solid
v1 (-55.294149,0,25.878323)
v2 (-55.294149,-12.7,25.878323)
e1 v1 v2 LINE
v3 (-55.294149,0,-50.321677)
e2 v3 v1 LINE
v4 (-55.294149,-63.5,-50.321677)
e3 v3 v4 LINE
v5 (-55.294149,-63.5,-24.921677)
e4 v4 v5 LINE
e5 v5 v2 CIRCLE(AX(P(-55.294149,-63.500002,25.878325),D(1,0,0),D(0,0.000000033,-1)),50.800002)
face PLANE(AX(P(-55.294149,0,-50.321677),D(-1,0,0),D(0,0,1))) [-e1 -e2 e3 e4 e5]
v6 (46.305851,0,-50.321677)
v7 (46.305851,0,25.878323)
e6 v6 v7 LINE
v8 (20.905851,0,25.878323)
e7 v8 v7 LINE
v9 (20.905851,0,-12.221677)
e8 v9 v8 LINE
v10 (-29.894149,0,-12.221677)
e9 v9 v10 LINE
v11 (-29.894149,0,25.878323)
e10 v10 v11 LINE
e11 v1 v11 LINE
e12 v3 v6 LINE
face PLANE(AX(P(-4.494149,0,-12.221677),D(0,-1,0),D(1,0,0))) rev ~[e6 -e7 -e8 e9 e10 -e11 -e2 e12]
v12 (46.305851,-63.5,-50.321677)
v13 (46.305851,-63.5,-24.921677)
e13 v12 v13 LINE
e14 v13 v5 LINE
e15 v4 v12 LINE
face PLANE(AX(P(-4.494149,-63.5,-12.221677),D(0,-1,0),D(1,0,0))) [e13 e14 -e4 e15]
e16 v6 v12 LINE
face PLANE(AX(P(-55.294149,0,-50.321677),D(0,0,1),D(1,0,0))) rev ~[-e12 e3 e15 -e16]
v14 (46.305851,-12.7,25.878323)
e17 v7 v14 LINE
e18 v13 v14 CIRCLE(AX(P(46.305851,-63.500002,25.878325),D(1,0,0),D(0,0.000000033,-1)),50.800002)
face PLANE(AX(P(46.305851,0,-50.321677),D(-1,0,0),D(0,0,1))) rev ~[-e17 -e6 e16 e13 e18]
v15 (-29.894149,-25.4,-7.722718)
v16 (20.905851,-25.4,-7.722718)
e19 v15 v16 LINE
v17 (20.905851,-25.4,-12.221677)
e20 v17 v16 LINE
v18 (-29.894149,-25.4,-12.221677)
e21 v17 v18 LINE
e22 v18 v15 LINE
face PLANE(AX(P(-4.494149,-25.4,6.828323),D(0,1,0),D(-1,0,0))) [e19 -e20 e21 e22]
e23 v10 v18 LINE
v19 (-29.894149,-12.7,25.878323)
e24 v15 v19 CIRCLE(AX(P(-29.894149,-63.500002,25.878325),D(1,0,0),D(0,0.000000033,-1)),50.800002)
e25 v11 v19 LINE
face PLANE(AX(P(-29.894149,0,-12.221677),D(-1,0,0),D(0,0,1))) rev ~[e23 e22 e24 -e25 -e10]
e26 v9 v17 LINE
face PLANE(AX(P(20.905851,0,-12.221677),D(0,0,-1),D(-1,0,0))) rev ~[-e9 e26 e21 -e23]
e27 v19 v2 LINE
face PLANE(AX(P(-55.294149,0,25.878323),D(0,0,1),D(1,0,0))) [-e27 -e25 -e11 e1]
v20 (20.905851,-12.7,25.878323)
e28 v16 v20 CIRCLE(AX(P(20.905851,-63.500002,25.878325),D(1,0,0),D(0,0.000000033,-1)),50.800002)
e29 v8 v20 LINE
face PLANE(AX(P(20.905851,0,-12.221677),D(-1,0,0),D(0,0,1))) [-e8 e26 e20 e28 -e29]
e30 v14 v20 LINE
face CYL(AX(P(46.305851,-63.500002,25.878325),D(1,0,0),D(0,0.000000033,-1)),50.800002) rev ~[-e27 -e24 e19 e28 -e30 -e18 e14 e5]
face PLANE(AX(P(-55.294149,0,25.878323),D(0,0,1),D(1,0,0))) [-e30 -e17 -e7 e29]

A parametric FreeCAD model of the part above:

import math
import FreeCAD as App
import Part
import Sketcher
from FreeCAD import Vector
Q = App.Units.Quantity

doc = App.newDocument("Part")
body = doc.addObject("PartDesign::Body", "Body")

sketch1 = doc.addObject("Sketcher::SketchObject", "Sketch")
body.addObject(sketch1)
sketch1.AttachmentSupport = (doc.XZ_Plane, [""])
sketch1.MapMode = "FlatFace"
sketch1.addGeometry([
    Part.LineSegment(Vector(-55.294149, 25.878323, 0), Vector(-55.294149, -50.321677, 0)),
    Part.LineSegment(Vector(-55.294149, -50.321677, 0), Vector(46.305851, -50.321677, 0)),
    Part.LineSegment(Vector(46.305851, -50.321677, 0), Vector(46.305851, 25.878323, 0)),
    Part.LineSegment(Vector(46.305851, 25.878323, 0), Vector(-55.294149, 25.878323, 0)),
], False)
sketch1.addConstraint([
    Sketcher.Constraint("Coincident", 0, 2, 1, 1),
    Sketcher.Constraint("Coincident", 1, 2, 2, 1),
    Sketcher.Constraint("Coincident", 2, 2, 3, 1),
    Sketcher.Constraint("Coincident", 3, 2, 0, 1),
    Sketcher.Constraint("Vertical", 0),
    Sketcher.Constraint("Horizontal", 1),
    Sketcher.Constraint("Vertical", 2),
    Sketcher.Constraint("Horizontal", 3),
    Sketcher.Constraint("DistanceX", 1, 1, 1, 2, Q("4 in")),
    Sketcher.Constraint("DistanceY", 0, 2, 0, 1, Q("3 in")),
    Sketcher.Constraint("DistanceX", 0, 2, -1, 1, 55.294149),
    Sketcher.Constraint("DistanceY", 0, 2, -1, 1, 50.321677),
])
pad1 = doc.addObject("PartDesign::Pad", "Pad")
body.addObject(pad1)
pad1.Profile = sketch1
pad1.Length = Q("2.5 in")

sketch2 = doc.addObject("Sketcher::SketchObject", "Sketch001")
body.addObject(sketch2)
sketch2.AttachmentSupport = (doc.YZ_Plane, [""])
sketch2.MapMode = "FlatFace"
sketch2.AttachmentOffset = App.Placement(Vector(0, 0, 46.305851), App.Rotation())
sketch2.addGeometry([
    Part.LineSegment(Vector(-63.5, 25.878323, 0), Vector(-63.5, -24.921677, 0)),
    Part.ArcOfCircle(Part.Circle(Vector(-63.500002, 25.878325, 0), Vector(0, 0, 1), 50.800002), math.radians(-89.999998), math.radians(-0.000002)),
    Part.LineSegment(Vector(-12.7, 25.878323, 0), Vector(-63.5, 25.878323, 0)),
], False)
sketch2.addConstraint([
    Sketcher.Constraint("Coincident", 0, 2, 1, 1),
    Sketcher.Constraint("Coincident", 1, 2, 2, 1),
    Sketcher.Constraint("Coincident", 2, 2, 0, 1),
    Sketcher.Constraint("Vertical", 0),
    Sketcher.Constraint("Horizontal", 2),
    Sketcher.Constraint("Coincident", 2, 2, 1, 3),
    Sketcher.Constraint("Radius", 1, Q("2.0000001 in")),
    Sketcher.Constraint("DistanceX", 1, 3, -1, 1, Q("2.5000001 in")),
    Sketcher.Constraint("DistanceY", -1, 1, 1, 3, 25.878325),
])
pocket1 = doc.addObject("PartDesign::Pocket", "Pocket")
body.addObject(pocket1)
pocket1.Profile = sketch2
pocket1.Length = Q("4.5 in")

sketch3 = doc.addObject("Sketcher::SketchObject", "Sketch002")
body.addObject(sketch3)
sketch3.AttachmentSupport = (doc.XZ_Plane, [""])
sketch3.MapMode = "FlatFace"
sketch3.addGeometry([
    Part.LineSegment(Vector(20.905851, 25.878323, 0), Vector(20.905851, -12.221677, 0)),
    Part.LineSegment(Vector(20.905851, -12.221677, 0), Vector(-29.894149, -12.221677, 0)),
    Part.LineSegment(Vector(-29.894149, -12.221677, 0), Vector(-29.894149, 25.878323, 0)),
    Part.LineSegment(Vector(-29.894149, 25.878323, 0), Vector(20.905851, 25.878323, 0)),
], False)
sketch3.addConstraint([
    Sketcher.Constraint("Coincident", 0, 2, 1, 1),
    Sketcher.Constraint("Coincident", 1, 2, 2, 1),
    Sketcher.Constraint("Coincident", 2, 2, 3, 1),
    Sketcher.Constraint("Coincident", 3, 2, 0, 1),
    Sketcher.Constraint("Vertical", 0),
    Sketcher.Constraint("Horizontal", 1),
    Sketcher.Constraint("Vertical", 2),
    Sketcher.Constraint("Horizontal", 3),
    Sketcher.Constraint("DistanceX", 1, 2, 1, 1, Q("2 in")),
    Sketcher.Constraint("DistanceY", 0, 2, 0, 1, Q("1.5 in")),
    Sketcher.Constraint("DistanceX", -1, 1, 0, 2, 20.905851),
    Sketcher.Constraint("DistanceY", 0, 2, -1, 1, 12.221677),
])
pocket2 = doc.addObject("PartDesign::Pocket", "Pocket001")
body.addObject(pocket2)
pocket2.Profile = sketch3
pocket2.Length = Q("1 in")
pocket2.Reversed = True

doc.recompute()
